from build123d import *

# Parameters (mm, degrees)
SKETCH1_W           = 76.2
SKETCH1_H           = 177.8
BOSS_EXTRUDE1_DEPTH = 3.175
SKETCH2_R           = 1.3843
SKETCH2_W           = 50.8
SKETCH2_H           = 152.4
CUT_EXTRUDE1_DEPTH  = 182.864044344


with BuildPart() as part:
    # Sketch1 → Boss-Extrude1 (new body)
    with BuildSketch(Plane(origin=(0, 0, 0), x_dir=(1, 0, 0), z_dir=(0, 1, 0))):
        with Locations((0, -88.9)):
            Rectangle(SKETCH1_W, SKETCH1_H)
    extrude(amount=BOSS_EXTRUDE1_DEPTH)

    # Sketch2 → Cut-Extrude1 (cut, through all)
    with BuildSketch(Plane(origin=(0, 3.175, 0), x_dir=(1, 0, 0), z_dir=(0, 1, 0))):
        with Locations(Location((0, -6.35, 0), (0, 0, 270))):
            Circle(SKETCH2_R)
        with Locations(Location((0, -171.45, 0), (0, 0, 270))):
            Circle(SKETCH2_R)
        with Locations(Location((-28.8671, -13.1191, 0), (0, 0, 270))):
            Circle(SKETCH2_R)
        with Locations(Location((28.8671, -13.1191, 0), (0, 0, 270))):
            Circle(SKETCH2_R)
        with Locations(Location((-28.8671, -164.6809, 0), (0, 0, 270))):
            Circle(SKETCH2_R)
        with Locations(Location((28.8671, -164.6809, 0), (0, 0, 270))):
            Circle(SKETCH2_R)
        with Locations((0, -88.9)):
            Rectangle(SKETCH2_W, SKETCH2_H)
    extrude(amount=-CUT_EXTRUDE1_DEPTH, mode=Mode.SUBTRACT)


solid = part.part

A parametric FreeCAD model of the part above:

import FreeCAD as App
import Part
import Sketcher

V = App.Vector
Q = App.Units.Quantity

doc = App.newDocument("Part")
body = doc.addObject("PartDesign::Body", "Body")

# Sketch on XZ plane
sketch1 = doc.addObject("Sketcher::SketchObject", "Sketch")
body.addObject(sketch1)
sketch1.AttachmentSupport = (doc.XZ_Plane, [""])
sketch1.MapMode = "FlatFace"
sketch1.addGeometry(Part.LineSegment(V(-38.1, 0, 0), V(-38.1, 177.8, 0)), False)
sketch1.addGeometry(Part.LineSegment(V(-38.1, 177.8, 0), V(38.1, 177.8, 0)), False)
sketch1.addGeometry(Part.LineSegment(V(38.1, 177.8, 0), V(38.1, 0, 0)), False)
sketch1.addGeometry(Part.LineSegment(V(38.1, 0, 0), V(-38.1, 0, 0)), False)
sketch1.addConstraint(Sketcher.Constraint("Coincident", 0, 2, 1, 1))
sketch1.addConstraint(Sketcher.Constraint("Coincident", 1, 2, 2, 1))
sketch1.addConstraint(Sketcher.Constraint("Coincident", 2, 2, 3, 1))
sketch1.addConstraint(Sketcher.Constraint("Coincident", 3, 2, 0, 1))
sketch1.addConstraint(Sketcher.Constraint("Vertical", 0))
sketch1.addConstraint(Sketcher.Constraint("Horizontal", 1))
sketch1.addConstraint(Sketcher.Constraint("Vertical", 2))
sketch1.addConstraint(Sketcher.Constraint("Horizontal", 3))
sketch1.addConstraint(Sketcher.Constraint("Symmetric", 2, 2, 3, 2, -1, 1))
sketch1.addConstraint(Sketcher.Constraint("DistanceX", 1, 1, 1, 2, Q("3 in")))
sketch1.addConstraint(Sketcher.Constraint("DistanceY", 0, 1, 0, 2, Q("7 in")))
pad1 = doc.addObject("PartDesign::Pad", "Pad")
body.addObject(pad1)
pad1.Profile = sketch1
pad1.Length = Q("0.125 in")
pad1.Reversed = True

# Sketch on XZ plane
sketch2 = doc.addObject("Sketcher::SketchObject", "Sketch001")
body.addObject(sketch2)
sketch2.AttachmentSupport = (doc.XZ_Plane, [""])
sketch2.MapMode = "FlatFace"
sketch2.AttachmentOffset = App.Placement(V(0, 0, -0.125 * 25.4), App.Rotation())
sketch2.addGeometry(Part.Circle(V(0, 6.35, 0), V(0, 0, 1), 1.3843), False)
sketch2.addGeometry(Part.Circle(V(0, 171.45, 0), V(0, 0, 1), 1.3843), False)
sketch2.addGeometry(Part.Circle(V(-28.8671, 13.1191, 0), V(0, 0, 1), 1.3843), False)
sketch2.addGeometry(Part.Circle(V(28.8671, 13.1191, 0), V(0, 0, 1), 1.3843), False)
sketch2.addGeometry(Part.Circle(V(-28.8671, 164.6809, 0), V(0, 0, 1), 1.3843), False)
sketch2.addGeometry(Part.Circle(V(28.8671, 164.6809, 0), V(0, 0, 1), 1.3843), False)
sketch2.addGeometry(Part.LineSegment(V(-25.4, 12.7, 0), V(-25.4, 165.1, 0)), False)
sketch2.addGeometry(Part.LineSegment(V(-25.4, 165.1, 0), V(25.4, 165.1, 0)), False)
sketch2.addGeometry(Part.LineSegment(V(25.4, 165.1, 0), V(25.4, 12.7, 0)), False)
sketch2.addGeometry(Part.LineSegment(V(25.4, 12.7, 0), V(-25.4, 12.7, 0)), False)
sketch2.addConstraint(Sketcher.Constraint("Coincident", 6, 2, 7, 1))
sketch2.addConstraint(Sketcher.Constraint("Coincident", 7, 2, 8, 1))
sketch2.addConstraint(Sketcher.Constraint("Coincident", 8, 2, 9, 1))
sketch2.addConstraint(Sketcher.Constraint("Coincident", 9, 2, 6, 1))
sketch2.addConstraint(Sketcher.Constraint("Vertical", 6))
sketch2.addConstraint(Sketcher.Constraint("Horizontal", 7))
sketch2.addConstraint(Sketcher.Constraint("Vertical", 8))
sketch2.addConstraint(Sketcher.Constraint("Horizontal", 9))
sketch2.addConstraint(Sketcher.Constraint("Equal", 0, 1))
sketch2.addConstraint(Sketcher.Constraint("Equal", 1, 2))
sketch2.addConstraint(Sketcher.Constraint("Equal", 2, 3))
sketch2.addConstraint(Sketcher.Constraint("Equal", 3, 4))
sketch2.addConstraint(Sketcher.Constraint("Equal", 4, 5))
sketch2.addConstraint(Sketcher.Constraint("Symmetric", 2, 3, 3, 3, -2))
sketch2.addConstraint(Sketcher.Constraint("Symmetric", 4, 3, 5, 3, -2))
sketch2.addConstraint(Sketcher.Constraint("PointOnObject", 0, 3, -2))
sketch2.addConstraint(Sketcher.Constraint("PointOnObject", 1, 3, -2))
sketch2.addConstraint(Sketcher.Constraint("Vertical", 2, 3, 4, 3))
sketch2.addConstraint(Sketcher.Constraint("DistanceX", 7, 1, 7, 2, Q("2 in")))
sketch2.addConstraint(Sketcher.Constraint("DistanceY", 6, 1, 6, 2, Q("6 in")))
sketch2.addConstraint(Sketcher.Constraint("Diameter", 0, Q("0.109 in")))
sketch2.addConstraint(Sketcher.Constraint("DistanceX", 6, 2, -1, 1, Q("1 in")))
sketch2.addConstraint(Sketcher.Constraint("DistanceY", -1, 1, 6, 2, Q("6.5 in")))
sketch2.addConstraint(Sketcher.Constraint("DistanceY", 0, 3, 1, 3, Q("6.5 in")))
sketch2.addConstraint(Sketcher.Constraint("DistanceY", -1, 1, 0, 3, Q("0.25 in")))
sketch2.addConstraint(Sketcher.Constraint("DistanceX", 2, 3, 3, 3, Q("2.273 in")))
sketch2.addConstraint(Sketcher.Constraint("DistanceY", 2, 3, 4, 3, Q("5.967 in")))
sketch2.addConstraint(Sketcher.Constraint("DistanceY", -1, 1, 2, 3, Q("0.5165 in")))
pocket1 = doc.addObject("PartDesign::Pocket", "Pocket")
body.addObject(pocket1)
pocket1.Profile = sketch2
pocket1.Type = "ThroughAll"
pocket1.Reversed = True

doc.recompute()
